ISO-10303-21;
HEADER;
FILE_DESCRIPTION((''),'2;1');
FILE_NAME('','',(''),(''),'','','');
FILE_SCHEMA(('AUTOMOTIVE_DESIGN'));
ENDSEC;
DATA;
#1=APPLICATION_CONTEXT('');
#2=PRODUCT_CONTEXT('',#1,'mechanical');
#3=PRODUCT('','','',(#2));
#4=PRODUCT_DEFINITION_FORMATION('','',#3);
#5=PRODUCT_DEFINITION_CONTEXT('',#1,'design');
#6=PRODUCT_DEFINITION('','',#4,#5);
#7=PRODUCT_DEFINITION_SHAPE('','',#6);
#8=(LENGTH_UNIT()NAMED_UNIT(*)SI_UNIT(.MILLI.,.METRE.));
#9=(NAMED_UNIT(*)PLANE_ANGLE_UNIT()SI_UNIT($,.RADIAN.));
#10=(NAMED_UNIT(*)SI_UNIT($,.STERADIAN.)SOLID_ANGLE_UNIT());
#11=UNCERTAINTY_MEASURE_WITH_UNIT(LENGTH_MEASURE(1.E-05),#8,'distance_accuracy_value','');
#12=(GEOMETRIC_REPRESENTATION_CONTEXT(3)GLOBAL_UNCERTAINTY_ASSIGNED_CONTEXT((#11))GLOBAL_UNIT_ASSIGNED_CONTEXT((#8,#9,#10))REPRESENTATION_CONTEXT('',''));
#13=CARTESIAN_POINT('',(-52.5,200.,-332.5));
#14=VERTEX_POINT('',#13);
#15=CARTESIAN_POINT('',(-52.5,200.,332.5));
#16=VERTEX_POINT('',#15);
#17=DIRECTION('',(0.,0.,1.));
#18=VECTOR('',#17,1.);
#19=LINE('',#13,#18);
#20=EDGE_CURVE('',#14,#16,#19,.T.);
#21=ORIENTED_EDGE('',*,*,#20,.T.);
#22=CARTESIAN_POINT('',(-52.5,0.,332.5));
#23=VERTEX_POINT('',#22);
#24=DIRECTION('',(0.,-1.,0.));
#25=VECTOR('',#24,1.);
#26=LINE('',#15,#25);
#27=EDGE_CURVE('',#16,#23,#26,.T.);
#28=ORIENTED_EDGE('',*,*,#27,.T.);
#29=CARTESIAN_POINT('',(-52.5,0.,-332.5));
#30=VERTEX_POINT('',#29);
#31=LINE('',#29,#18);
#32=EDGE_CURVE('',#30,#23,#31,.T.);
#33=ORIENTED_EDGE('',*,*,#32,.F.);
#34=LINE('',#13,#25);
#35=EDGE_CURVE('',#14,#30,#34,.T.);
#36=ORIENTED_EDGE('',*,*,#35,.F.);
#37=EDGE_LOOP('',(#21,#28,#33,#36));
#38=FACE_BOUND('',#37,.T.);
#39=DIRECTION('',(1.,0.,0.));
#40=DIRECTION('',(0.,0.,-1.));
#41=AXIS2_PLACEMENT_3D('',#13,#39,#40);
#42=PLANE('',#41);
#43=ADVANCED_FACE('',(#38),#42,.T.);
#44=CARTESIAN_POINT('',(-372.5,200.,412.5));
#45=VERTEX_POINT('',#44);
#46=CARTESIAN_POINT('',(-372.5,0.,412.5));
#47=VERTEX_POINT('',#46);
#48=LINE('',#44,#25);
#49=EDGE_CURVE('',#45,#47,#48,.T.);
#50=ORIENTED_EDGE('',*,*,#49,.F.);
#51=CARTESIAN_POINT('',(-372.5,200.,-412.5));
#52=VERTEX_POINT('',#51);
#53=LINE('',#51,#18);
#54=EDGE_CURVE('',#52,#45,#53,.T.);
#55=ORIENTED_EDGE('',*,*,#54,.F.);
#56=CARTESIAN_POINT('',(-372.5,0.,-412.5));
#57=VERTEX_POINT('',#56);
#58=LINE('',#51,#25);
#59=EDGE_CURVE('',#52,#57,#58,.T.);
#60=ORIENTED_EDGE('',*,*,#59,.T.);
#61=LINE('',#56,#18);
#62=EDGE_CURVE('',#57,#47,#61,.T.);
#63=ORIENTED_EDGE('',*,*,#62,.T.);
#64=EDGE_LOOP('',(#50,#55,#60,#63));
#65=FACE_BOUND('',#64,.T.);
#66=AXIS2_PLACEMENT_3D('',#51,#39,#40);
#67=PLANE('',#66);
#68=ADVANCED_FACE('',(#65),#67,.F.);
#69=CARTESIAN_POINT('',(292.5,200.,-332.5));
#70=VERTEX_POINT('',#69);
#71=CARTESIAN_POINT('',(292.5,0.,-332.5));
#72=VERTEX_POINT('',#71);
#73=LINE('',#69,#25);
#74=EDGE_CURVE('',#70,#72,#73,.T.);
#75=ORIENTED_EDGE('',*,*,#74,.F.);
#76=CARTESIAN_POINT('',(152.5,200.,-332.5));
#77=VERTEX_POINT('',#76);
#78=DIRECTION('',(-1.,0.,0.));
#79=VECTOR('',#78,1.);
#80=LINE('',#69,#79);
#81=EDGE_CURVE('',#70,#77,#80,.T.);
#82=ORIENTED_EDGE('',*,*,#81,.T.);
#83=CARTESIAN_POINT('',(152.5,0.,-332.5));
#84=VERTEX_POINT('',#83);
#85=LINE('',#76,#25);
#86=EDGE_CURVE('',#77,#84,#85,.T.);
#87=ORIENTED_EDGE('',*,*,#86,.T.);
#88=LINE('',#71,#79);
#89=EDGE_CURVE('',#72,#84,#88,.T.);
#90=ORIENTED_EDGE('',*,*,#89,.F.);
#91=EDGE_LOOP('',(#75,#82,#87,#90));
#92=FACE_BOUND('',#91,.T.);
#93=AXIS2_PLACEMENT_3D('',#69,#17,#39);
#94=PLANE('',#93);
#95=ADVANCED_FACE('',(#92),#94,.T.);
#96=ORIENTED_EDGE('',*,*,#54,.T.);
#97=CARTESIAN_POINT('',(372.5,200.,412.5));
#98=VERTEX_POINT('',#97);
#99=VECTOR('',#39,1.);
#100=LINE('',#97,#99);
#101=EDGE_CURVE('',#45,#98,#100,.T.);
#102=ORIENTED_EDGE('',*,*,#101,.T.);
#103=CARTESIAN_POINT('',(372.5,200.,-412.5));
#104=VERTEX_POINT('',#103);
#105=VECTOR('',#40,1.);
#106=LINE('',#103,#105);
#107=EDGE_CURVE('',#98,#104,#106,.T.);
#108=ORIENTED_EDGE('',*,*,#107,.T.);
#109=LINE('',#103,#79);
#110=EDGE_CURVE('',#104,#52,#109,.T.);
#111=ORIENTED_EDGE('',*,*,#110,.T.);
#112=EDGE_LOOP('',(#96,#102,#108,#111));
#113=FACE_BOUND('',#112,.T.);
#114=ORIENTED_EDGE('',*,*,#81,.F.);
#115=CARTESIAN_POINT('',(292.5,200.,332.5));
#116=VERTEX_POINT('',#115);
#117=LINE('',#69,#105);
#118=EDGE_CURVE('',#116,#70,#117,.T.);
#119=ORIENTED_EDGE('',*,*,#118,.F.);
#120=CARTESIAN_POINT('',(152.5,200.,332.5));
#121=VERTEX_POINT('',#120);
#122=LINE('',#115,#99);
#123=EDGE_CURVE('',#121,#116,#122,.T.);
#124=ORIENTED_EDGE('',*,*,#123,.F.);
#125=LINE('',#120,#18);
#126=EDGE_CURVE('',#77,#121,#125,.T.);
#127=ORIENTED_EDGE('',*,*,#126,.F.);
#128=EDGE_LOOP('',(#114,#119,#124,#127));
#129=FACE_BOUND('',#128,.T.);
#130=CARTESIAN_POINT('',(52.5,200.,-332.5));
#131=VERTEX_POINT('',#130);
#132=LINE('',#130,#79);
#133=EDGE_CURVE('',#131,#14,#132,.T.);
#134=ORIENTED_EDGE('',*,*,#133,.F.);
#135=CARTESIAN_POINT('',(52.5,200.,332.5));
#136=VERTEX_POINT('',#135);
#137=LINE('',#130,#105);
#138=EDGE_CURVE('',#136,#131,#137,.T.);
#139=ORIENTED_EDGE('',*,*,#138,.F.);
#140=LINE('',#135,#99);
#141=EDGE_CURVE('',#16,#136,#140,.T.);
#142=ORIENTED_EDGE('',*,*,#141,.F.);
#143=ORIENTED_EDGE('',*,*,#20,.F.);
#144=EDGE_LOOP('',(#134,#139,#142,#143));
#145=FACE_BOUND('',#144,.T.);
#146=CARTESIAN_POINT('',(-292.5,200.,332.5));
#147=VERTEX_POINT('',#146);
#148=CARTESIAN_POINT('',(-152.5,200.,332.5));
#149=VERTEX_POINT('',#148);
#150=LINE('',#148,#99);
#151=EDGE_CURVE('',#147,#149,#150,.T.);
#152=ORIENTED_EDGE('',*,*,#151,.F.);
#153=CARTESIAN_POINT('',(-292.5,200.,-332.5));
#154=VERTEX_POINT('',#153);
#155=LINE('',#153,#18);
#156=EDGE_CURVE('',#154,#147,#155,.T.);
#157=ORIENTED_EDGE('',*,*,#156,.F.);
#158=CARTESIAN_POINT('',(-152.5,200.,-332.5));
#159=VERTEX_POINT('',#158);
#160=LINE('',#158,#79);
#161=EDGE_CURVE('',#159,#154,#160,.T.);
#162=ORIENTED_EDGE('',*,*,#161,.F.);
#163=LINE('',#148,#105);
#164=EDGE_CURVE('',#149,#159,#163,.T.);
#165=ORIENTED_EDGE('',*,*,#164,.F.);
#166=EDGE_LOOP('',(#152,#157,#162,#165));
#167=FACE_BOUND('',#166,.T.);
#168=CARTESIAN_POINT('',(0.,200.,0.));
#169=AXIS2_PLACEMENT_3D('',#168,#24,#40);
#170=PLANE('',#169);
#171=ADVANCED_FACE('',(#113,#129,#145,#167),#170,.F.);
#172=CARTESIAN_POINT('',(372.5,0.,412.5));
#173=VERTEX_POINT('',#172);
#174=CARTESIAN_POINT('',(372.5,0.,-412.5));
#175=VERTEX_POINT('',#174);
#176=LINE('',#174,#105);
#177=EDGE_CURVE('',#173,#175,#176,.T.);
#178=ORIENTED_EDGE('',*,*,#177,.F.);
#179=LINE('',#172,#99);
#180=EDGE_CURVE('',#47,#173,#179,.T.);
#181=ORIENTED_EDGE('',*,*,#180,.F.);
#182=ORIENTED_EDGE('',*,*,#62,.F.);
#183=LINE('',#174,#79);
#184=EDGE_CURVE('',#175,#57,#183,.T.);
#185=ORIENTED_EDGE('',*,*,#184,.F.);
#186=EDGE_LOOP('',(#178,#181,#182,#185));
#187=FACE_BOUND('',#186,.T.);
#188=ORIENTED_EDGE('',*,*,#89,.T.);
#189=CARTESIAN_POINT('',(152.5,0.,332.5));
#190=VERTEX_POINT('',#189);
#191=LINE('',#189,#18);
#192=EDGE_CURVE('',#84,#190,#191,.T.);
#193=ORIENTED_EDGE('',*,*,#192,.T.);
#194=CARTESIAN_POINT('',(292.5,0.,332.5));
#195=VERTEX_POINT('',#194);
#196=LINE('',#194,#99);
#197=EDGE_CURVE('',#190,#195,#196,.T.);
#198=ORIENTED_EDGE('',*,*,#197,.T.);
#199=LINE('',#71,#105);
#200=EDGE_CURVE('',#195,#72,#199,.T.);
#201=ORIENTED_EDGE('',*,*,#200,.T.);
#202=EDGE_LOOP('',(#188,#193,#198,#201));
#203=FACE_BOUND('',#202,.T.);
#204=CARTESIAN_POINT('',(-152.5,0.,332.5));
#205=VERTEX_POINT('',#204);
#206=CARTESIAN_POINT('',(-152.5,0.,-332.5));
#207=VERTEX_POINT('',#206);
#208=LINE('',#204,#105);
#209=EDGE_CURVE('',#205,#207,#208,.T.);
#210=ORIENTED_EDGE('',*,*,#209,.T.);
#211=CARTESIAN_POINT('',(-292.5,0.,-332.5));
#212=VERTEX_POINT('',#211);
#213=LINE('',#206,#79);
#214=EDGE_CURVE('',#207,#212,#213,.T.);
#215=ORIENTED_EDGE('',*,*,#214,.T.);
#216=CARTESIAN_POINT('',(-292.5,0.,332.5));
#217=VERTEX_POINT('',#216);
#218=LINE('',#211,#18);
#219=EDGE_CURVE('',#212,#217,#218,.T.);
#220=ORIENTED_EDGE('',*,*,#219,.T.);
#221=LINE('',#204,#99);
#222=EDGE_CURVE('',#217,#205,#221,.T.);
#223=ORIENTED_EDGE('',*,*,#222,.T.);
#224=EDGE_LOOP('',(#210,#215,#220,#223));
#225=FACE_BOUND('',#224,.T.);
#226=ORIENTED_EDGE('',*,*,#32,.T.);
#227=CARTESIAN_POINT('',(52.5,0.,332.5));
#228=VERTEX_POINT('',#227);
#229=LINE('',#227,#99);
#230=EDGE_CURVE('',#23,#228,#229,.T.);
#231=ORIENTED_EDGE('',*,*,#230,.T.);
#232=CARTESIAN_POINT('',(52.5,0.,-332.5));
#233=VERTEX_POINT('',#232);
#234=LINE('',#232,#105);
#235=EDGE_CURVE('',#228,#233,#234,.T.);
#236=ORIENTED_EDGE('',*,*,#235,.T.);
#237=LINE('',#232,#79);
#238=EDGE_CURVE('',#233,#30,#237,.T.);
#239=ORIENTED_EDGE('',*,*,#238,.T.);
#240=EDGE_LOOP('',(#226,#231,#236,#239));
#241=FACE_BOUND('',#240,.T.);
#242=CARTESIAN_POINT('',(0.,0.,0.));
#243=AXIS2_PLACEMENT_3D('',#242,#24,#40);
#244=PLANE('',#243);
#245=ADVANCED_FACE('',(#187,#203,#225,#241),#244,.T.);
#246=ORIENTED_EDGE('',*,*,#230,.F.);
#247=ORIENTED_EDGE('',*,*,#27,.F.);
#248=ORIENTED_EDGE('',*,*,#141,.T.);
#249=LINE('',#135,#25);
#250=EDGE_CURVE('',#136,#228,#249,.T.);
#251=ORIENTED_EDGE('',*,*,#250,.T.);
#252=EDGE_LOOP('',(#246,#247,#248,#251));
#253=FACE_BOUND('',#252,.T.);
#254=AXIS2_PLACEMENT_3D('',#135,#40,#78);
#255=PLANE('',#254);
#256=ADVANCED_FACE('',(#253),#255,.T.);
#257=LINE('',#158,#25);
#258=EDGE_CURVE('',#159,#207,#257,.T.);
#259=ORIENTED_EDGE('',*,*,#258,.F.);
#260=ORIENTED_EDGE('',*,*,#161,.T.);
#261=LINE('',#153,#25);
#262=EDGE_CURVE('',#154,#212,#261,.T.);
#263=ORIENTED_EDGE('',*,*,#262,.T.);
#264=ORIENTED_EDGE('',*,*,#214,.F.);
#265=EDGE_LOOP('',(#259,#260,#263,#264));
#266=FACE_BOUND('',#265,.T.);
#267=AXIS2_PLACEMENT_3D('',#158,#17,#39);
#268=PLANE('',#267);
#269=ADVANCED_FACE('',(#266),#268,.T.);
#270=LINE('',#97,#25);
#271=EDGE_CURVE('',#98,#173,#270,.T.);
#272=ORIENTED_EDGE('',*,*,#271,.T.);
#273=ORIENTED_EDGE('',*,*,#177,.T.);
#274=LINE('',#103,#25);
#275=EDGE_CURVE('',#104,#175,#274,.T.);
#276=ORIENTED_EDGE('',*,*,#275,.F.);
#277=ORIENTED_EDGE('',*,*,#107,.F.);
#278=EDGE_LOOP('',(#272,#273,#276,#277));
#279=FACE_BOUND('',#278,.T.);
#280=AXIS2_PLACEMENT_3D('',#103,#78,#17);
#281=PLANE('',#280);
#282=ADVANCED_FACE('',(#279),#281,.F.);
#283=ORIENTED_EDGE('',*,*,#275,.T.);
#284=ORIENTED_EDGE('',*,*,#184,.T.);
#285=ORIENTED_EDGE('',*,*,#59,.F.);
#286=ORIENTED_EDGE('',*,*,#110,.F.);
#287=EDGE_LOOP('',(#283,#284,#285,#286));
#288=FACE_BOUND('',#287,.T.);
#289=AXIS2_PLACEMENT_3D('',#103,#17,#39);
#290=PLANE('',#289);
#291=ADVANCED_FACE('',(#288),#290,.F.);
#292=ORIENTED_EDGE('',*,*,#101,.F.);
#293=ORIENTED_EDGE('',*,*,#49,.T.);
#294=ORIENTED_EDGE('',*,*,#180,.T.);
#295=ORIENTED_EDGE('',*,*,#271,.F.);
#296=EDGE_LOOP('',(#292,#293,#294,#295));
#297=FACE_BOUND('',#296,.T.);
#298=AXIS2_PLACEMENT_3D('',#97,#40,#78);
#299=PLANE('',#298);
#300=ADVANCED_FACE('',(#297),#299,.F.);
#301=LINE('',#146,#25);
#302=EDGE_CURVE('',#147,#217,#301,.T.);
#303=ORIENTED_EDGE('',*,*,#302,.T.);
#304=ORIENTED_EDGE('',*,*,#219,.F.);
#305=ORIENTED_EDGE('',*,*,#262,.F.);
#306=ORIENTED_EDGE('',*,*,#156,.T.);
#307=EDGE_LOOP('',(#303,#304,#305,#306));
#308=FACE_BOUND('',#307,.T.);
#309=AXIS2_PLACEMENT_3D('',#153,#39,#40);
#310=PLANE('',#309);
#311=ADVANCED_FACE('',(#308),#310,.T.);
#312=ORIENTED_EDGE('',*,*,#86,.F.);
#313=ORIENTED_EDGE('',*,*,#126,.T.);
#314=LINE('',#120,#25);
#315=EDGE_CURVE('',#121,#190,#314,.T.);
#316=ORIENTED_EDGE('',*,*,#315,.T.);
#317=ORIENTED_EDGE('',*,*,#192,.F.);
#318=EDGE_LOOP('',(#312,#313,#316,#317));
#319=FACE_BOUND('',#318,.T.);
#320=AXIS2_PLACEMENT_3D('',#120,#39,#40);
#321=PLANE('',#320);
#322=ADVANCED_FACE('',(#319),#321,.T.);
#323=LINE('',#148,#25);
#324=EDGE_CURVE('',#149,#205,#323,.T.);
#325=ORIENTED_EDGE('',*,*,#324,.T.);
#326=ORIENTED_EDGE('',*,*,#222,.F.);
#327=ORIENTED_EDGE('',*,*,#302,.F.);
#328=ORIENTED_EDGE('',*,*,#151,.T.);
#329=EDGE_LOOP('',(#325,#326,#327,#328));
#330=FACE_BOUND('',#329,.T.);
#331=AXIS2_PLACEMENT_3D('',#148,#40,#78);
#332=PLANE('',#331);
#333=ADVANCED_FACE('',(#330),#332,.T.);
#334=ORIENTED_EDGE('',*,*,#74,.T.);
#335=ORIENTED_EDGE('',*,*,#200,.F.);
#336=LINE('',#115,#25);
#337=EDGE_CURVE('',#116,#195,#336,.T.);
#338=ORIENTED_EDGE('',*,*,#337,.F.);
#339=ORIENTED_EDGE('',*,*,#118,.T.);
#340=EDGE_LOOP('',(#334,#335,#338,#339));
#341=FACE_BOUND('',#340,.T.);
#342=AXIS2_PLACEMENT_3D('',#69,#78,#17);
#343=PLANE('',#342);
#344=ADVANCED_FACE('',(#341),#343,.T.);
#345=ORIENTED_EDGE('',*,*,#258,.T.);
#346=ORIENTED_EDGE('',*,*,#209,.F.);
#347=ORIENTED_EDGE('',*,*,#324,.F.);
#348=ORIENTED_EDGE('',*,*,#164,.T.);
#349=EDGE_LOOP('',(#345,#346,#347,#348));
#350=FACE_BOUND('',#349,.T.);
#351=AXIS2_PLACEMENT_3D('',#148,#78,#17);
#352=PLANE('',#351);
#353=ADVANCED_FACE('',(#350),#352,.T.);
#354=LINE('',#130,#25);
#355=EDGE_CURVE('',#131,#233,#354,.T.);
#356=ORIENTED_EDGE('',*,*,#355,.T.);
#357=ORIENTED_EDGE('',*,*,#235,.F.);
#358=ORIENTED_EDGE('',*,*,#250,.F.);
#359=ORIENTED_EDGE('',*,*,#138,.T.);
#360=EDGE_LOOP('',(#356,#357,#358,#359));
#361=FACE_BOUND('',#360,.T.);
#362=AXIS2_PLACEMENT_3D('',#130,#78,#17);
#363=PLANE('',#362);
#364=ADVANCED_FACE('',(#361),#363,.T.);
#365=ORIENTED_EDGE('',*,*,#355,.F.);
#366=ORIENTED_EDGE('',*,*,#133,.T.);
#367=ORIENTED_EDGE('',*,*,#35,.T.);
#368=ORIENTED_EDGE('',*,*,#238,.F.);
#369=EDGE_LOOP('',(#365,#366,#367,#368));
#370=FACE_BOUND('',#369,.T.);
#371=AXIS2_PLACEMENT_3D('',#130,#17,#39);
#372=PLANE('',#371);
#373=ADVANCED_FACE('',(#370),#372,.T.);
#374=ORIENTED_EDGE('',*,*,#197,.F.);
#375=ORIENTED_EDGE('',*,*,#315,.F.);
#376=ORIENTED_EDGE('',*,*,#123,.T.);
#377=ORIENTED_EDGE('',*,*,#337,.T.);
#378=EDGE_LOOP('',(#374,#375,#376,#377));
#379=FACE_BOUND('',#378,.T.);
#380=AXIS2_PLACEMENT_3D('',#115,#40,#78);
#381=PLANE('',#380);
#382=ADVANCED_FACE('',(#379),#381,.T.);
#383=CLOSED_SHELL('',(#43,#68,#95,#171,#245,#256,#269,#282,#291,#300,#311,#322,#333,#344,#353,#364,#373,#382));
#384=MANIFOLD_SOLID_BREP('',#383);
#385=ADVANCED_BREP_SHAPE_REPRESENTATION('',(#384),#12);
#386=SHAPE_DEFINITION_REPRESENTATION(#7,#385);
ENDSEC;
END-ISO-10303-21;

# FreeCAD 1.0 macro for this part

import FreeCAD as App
import Part
import Sketcher

V = App.Vector
Q = App.Units.Quantity

doc = App.newDocument("Part")
body = doc.addObject("PartDesign::Body", "Body")

# Sketch on XZ plane
sketch1 = doc.addObject("Sketcher::SketchObject", "Sketch")
body.addObject(sketch1)
sketch1.AttachmentSupport = (doc.XZ_Plane, [""])
sketch1.MapMode = "FlatFace"
sketch1.addGeometry(Part.LineSegment(V(-372.5, -412.5, 0), V(-372.5, 412.5, 0)), False)
sketch1.addGeometry(Part.LineSegment(V(-372.5, 412.5, 0), V(372.5, 412.5, 0)), False)
sketch1.addGeometry(Part.LineSegment(V(372.5, 412.5, 0), V(372.5, -412.5, 0)), False)
sketch1.addGeometry(Part.LineSegment(V(372.5, -412.5, 0), V(-372.5, -412.5, 0)), False)
sketch1.addGeometry(Part.LineSegment(V(-152.5, 332.5, 0), V(-292.5, 332.5, 0)), False)
sketch1.addGeometry(Part.LineSegment(V(-292.5, 332.5, 0), V(-292.5, -332.5, 0)), False)
sketch1.addGeometry(Part.LineSegment(V(-292.5, -332.5, 0), V(-152.5, -332.5, 0)), False)
sketch1.addGeometry(Part.LineSegment(V(-152.5, -332.5, 0), V(-152.5, 332.5, 0)), False)
sketch1.addGeometry(Part.LineSegment(V(52.5, 332.5, 0), V(-52.5, 332.5, 0)), False)
sketch1.addGeometry(Part.LineSegment(V(-52.5, 332.5, 0), V(-52.5, -332.5, 0)), False)
sketch1.addGeometry(Part.LineSegment(V(-52.5, -332.5, 0), V(52.5, -332.5, 0)), False)
sketch1.addGeometry(Part.LineSegment(V(52.5, -332.5, 0), V(52.5, 332.5, 0)), False)
sketch1.addGeometry(Part.LineSegment(V(292.5, 332.5, 0), V(152.5, 332.5, 0)), False)
sketch1.addGeometry(Part.LineSegment(V(152.5, 332.5, 0), V(152.5, -332.5, 0)), False)
sketch1.addGeometry(Part.LineSegment(V(152.5, -332.5, 0), V(292.5, -332.5, 0)), False)
sketch1.addGeometry(Part.LineSegment(V(292.5, -332.5, 0), V(292.5, 332.5, 0)), False)
sketch1.addConstraint(Sketcher.Constraint("Coincident", 0, 2, 1, 1))
sketch1.addConstraint(Sketcher.Constraint("Coincident", 1, 2, 2, 1))
sketch1.addConstraint(Sketcher.Constraint("Coincident", 2, 2, 3, 1))
sketch1.addConstraint(Sketcher.Constraint("Coincident", 3, 2, 0, 1))
sketch1.addConstraint(Sketcher.Constraint("Coincident", 4, 2, 5, 1))
sketch1.addConstraint(Sketcher.Constraint("Coincident", 5, 2, 6, 1))
sketch1.addConstraint(Sketcher.Constraint("Coincident", 6, 2, 7, 1))
sketch1.addConstraint(Sketcher.Constraint("Coincident", 7, 2, 4, 1))
sketch1.addConstraint(Sketcher.Constraint("Coincident", 8, 2, 9, 1))
sketch1.addConstraint(Sketcher.Constraint("Coincident", 9, 2, 10, 1))
sketch1.addConstraint(Sketcher.Constraint("Coincident", 10, 2, 11, 1))
sketch1.addConstraint(Sketcher.Constraint("Coincident", 11, 2, 8, 1))
sketch1.addConstraint(Sketcher.Constraint("Coincident", 12, 2, 13, 1))
sketch1.addConstraint(Sketcher.Constraint("Coincident", 13, 2, 14, 1))
sketch1.addConstraint(Sketcher.Constraint("Coincident", 14, 2, 15, 1))
sketch1.addConstraint(Sketcher.Constraint("Coincident", 15, 2, 12, 1))
sketch1.addConstraint(Sketcher.Constraint("Vertical", 0))
sketch1.addConstraint(Sketcher.Constraint("Horizontal", 1))
sketch1.addConstraint(Sketcher.Constraint("Vertical", 2))
sketch1.addConstraint(Sketcher.Constraint("Horizontal", 3))
sketch1.addConstraint(Sketcher.Constraint("Horizontal", 4))
sketch1.addConstraint(Sketcher.Constraint("Vertical", 5))
sketch1.addConstraint(Sketcher.Constraint("Horizontal", 6))
sketch1.addConstraint(Sketcher.Constraint("Vertical", 7))
sketch1.addConstraint(Sketcher.Constraint("Horizontal", 8))
sketch1.addConstraint(Sketcher.Constraint("Vertical", 9))
sketch1.addConstraint(Sketcher.Constraint("Horizontal", 10))
sketch1.addConstraint(Sketcher.Constraint("Vertical", 11))
sketch1.addConstraint(Sketcher.Constraint("Horizontal", 12))
sketch1.addConstraint(Sketcher.Constraint("Vertical", 13))
sketch1.addConstraint(Sketcher.Constraint("Horizontal", 14))
sketch1.addConstraint(Sketcher.Constraint("Vertical", 15))
sketch1.addConstraint(Sketcher.Constraint("Symmetric", 0, 2, 2, 2, -1, 1))
sketch1.addConstraint(Sketcher.Constraint("Symmetric", 8, 2, 10, 2, -1, 1))
sketch1.addConstraint(Sketcher.Constraint("Symmetric", 6, 2, 12, 2, -1, 1))
sketch1.addConstraint(Sketcher.Constraint("Symmetric", 4, 2, 14, 2, -1, 1))
sketch1.addConstraint(Sketcher.Constraint("Horizontal", 7, 2, 8, 2))
sketch1.addConstraint(Sketcher.Constraint("Horizontal", 6, 2, 9, 2))
sketch1.addConstraint(Sketcher.Constraint("DistanceX", 1, 1, 1, 2, Q("745 mm")))
sketch1.addConstraint(Sketcher.Constraint("DistanceX", 4, 2, 4, 1, Q("140 mm")))
sketch1.addConstraint(Sketcher.Constraint("DistanceX", 8, 2, 8, 1, Q("105 mm")))
sketch1.addConstraint(Sketcher.Constraint("DistanceY", 0, 1, 0, 2, Q("825 mm")))
sketch1.addConstraint(Sketcher.Constraint("DistanceY", 5, 2, 5, 1, Q("665 mm")))
sketch1.addConstraint(Sketcher.Constraint("DistanceX", 0, 2, 4, 2, Q("80 mm")))
pad1 = doc.addObject("PartDesign::Pad", "Pad")
body.addObject(pad1)
pad1.Profile = sketch1
pad1.Length = 200
pad1.Reversed = True

doc.recompute()
